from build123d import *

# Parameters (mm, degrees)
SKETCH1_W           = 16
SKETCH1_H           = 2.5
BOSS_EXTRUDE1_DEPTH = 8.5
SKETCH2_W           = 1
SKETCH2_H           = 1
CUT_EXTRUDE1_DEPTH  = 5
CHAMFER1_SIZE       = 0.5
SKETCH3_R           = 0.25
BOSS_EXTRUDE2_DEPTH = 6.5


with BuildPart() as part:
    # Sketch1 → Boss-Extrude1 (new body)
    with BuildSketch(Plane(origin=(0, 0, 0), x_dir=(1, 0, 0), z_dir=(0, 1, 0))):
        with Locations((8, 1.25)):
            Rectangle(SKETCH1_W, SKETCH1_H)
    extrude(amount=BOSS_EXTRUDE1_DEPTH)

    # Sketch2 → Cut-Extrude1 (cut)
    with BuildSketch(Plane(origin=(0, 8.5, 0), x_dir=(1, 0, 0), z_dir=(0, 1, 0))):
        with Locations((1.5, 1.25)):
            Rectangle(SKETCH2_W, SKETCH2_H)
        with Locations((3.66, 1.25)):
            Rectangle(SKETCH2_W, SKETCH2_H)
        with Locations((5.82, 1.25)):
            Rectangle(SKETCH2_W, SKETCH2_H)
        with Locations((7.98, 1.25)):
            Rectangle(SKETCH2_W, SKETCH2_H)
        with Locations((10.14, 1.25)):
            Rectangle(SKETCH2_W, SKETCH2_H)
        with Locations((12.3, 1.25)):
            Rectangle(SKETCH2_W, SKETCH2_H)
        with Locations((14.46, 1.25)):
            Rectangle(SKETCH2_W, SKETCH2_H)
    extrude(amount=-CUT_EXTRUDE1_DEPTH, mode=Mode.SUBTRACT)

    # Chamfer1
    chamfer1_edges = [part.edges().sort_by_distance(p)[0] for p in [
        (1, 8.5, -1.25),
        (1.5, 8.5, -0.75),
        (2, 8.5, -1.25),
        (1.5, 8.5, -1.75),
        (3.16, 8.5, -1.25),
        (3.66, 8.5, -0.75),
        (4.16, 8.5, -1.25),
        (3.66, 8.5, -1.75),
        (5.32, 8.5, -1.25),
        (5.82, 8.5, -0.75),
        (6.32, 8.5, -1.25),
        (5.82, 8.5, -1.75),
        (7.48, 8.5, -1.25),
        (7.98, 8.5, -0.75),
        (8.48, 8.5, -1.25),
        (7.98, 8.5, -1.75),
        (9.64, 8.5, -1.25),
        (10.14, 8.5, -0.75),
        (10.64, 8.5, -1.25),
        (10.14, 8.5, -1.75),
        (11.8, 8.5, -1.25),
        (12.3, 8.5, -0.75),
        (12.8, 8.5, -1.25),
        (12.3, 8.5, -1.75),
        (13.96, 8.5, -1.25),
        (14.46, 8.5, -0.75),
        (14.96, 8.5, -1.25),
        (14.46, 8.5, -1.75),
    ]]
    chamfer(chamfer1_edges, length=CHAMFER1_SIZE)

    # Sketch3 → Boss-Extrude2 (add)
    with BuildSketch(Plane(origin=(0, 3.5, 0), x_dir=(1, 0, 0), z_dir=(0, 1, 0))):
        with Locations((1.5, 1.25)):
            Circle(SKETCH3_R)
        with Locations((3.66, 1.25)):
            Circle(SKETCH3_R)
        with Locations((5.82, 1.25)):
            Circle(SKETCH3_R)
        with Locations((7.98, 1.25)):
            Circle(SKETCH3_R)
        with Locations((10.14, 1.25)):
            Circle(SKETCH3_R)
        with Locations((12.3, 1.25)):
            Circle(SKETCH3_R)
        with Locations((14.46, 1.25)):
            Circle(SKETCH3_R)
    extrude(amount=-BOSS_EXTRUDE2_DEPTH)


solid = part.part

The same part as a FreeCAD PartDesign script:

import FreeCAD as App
import Part
import Sketcher
Q = App.Units.Quantity


def edges_at(feature, points):
    """Names of the edges that pass closest to the given points."""
    edges = feature.Shape.Edges
    near = lambda p: min(range(len(edges)), key=lambda i: edges[i].distToShape(Part.Vertex(*p))[0])
    return sorted({f"Edge{near(p) + 1}" for p in points})


def add_polygon(sketch, points):
    """Adds a closed chain of lines whose ends are joined by coincident constraints."""
    first, n = sketch.GeometryCount, len(points)
    for a, b in zip(points, points[1:] + points[:1]):
        sketch.addGeometry(Part.LineSegment(App.Vector(*a, 0), App.Vector(*b, 0)), False)
    for i in range(n):
        sketch.addConstraint(Sketcher.Constraint("Coincident", first + i, 2, first + (i + 1) % n, 1))

doc = App.newDocument("Part")
body = doc.addObject("PartDesign::Body", "Body")

# Sketch on XZ plane
sketch1 = body.newObject("Sketcher::SketchObject", "Sketch")
sketch1.AttachmentSupport = (doc.getObject("XZ_Plane"), [""])
sketch1.MapMode = "FlatFace"
add_polygon(sketch1, [(0, -2.5), (0, 0), (16, 0), (16, -2.5)])  # lines 0-3
sketch1.addConstraint(Sketcher.Constraint("Vertical", 0))
sketch1.addConstraint(Sketcher.Constraint("Horizontal", 1))
sketch1.addConstraint(Sketcher.Constraint("Vertical", 2))
sketch1.addConstraint(Sketcher.Constraint("Horizontal", 3))
sketch1.addConstraint(Sketcher.Constraint("Coincident", 0, 2, -1, 1))
sketch1.addConstraint(Sketcher.Constraint("DistanceX", 1, 1, 1, 2, Q("16 mm")))
sketch1.addConstraint(Sketcher.Constraint("DistanceY", 0, 1, 0, 2, Q("2.5 mm")))
pad1 = body.newObject("PartDesign::Pad", "Pad")
pad1.Profile = sketch1
pad1.Length = 8.5
pad1.Reversed = True

# Sketch on XZ plane
sketch2 = body.newObject("Sketcher::SketchObject", "Sketch001")
sketch2.AttachmentSupport = (doc.getObject("XZ_Plane"), [""])
sketch2.MapMode = "FlatFace"
sketch2.AttachmentOffset = App.Placement(App.Vector(0, 0, -8.5), App.Rotation())
add_polygon(sketch2, [(1, -1.8), (1, -0.8), (2, -0.8), (2, -1.8)])  # lines 0-3
add_polygon(sketch2, [(3.2, -1.8), (3.2, -0.8), (4.2, -0.8), (4.2, -1.8)])  # lines 4-7
add_polygon(sketch2, [(5.3, -1.8), (5.3, -0.8), (6.3, -0.8), (6.3, -1.8)])  # lines 8-11
add_polygon(sketch2, [(7.5, -1.8), (7.5, -0.8), (8.5, -0.8), (8.5, -1.8)])  # lines 12-15
add_polygon(sketch2, [(9.6, -1.8), (9.6, -0.8), (10.6, -0.8), (10.6, -1.8)])  # lines 16-19
add_polygon(sketch2, [(11.8, -1.8), (11.8, -0.8), (12.8, -0.8), (12.8, -1.8)])  # lines 20-23
add_polygon(sketch2, [(14, -1.8), (14, -0.8), (15, -0.8), (15, -1.8)])  # lines 24-27
sketch2.addConstraint(Sketcher.Constraint("Vertical", 0))
sketch2.addConstraint(Sketcher.Constraint("Horizontal", 1))
sketch2.addConstraint(Sketcher.Constraint("Vertical", 2))
sketch2.addConstraint(Sketcher.Constraint("Horizontal", 3))
sketch2.addConstraint(Sketcher.Constraint("Vertical", 4))
sketch2.addConstraint(Sketcher.Constraint("Horizontal", 5))
sketch2.addConstraint(Sketcher.Constraint("Vertical", 6))
sketch2.addConstraint(Sketcher.Constraint("Horizontal", 7))
sketch2.addConstraint(Sketcher.Constraint("Vertical", 8))
sketch2.addConstraint(Sketcher.Constraint("Horizontal", 9))
sketch2.addConstraint(Sketcher.Constraint("Vertical", 10))
sketch2.addConstraint(Sketcher.Constraint("Horizontal", 11))
sketch2.addConstraint(Sketcher.Constraint("Vertical", 12))
sketch2.addConstraint(Sketcher.Constraint("Horizontal", 13))
sketch2.addConstraint(Sketcher.Constraint("Vertical", 14))
sketch2.addConstraint(Sketcher.Constraint("Horizontal", 15))
sketch2.addConstraint(Sketcher.Constraint("Vertical", 16))
sketch2.addConstraint(Sketcher.Constraint("Horizontal", 17))
sketch2.addConstraint(Sketcher.Constraint("Vertical", 18))
sketch2.addConstraint(Sketcher.Constraint("Horizontal", 19))
sketch2.addConstraint(Sketcher.Constraint("Vertical", 20))
sketch2.addConstraint(Sketcher.Constraint("Horizontal", 21))
sketch2.addConstraint(Sketcher.Constraint("Vertical", 22))
sketch2.addConstraint(Sketcher.Constraint("Horizontal", 23))
sketch2.addConstraint(Sketcher.Constraint("Vertical", 24))
sketch2.addConstraint(Sketcher.Constraint("Horizontal", 25))
sketch2.addConstraint(Sketcher.Constraint("Vertical", 26))
sketch2.addConstraint(Sketcher.Constraint("Horizontal", 27))
sketch2.addConstraint(Sketcher.Constraint("Horizontal", 1, 2, 4, 2))
sketch2.addConstraint(Sketcher.Constraint("Horizontal", 3, 2, 6, 2))
sketch2.addConstraint(Sketcher.Constraint("Horizontal", 5, 2, 8, 2))
sketch2.addConstraint(Sketcher.Constraint("Horizontal", 7, 2, 10, 2))
sketch2.addConstraint(Sketcher.Constraint("Horizontal", 9, 2, 12, 2))
sketch2.addConstraint(Sketcher.Constraint("Horizontal", 11, 2, 14, 2))
sketch2.addConstraint(Sketcher.Constraint("Horizontal", 13, 2, 16, 2))
sketch2.addConstraint(Sketcher.Constraint("Horizontal", 15, 2, 18, 2))
sketch2.addConstraint(Sketcher.Constraint("Horizontal", 17, 2, 20, 2))
sketch2.addConstraint(Sketcher.Constraint("Horizontal", 19, 2, 22, 2))
sketch2.addConstraint(Sketcher.Constraint("Horizontal", 21, 2, 24, 2))
sketch2.addConstraint(Sketcher.Constraint("Horizontal", 23, 2, 26, 2))
sketch2.addConstraint(Sketcher.Constraint("Equal", 3, 5))
sketch2.addConstraint(Sketcher.Constraint("Equal", 7, 9))
sketch2.addConstraint(Sketcher.Constraint("Equal", 11, 13))
sketch2.addConstraint(Sketcher.Constraint("Equal", 15, 17))
sketch2.addConstraint(Sketcher.Constraint("Equal", 19, 21))
sketch2.addConstraint(Sketcher.Constraint("Equal", 23, 25))
sketch2.addConstraint(Sketcher.Constraint("Equal", 27, 0))
sketch2.addConstraint(Sketcher.Constraint("DistanceX", 1, 1, 1, 2, Q("1 mm")))
sketch2.addConstraint(Sketcher.Constraint("DistanceX", -1, 1, 0, 2, Q("1 mm")))
sketch2.addConstraint(Sketcher.Constraint("DistanceX", -1, 1, 20, 2, Q("11.8 mm")))
sketch2.addConstraint(Sketcher.Constraint("DistanceY", 0, 2, -1, 1, Q("0.75 mm")))
sketch2.addConstraint(Sketcher.Constraint("DistanceX", -1, 1, 4, 2, Q("3.16 mm")))
sketch2.addConstraint(Sketcher.Constraint("DistanceX", -1, 1, 8, 2, Q("5.32 mm")))
sketch2.addConstraint(Sketcher.Constraint("DistanceX", -1, 1, 12, 2, Q("7.48 mm")))
sketch2.addConstraint(Sketcher.Constraint("DistanceX", -1, 1, 16, 2, Q("9.64 mm")))
sketch2.addConstraint(Sketcher.Constraint("DistanceX", -1, 1, 24, 2, Q("13.96 mm")))
pocket1 = body.newObject("PartDesign::Pocket", "Pocket")
pocket1.Profile = sketch2
pocket1.Length = 5
pocket1.Reversed = True
doc.recompute()

chamfer = body.newObject("PartDesign::Chamfer", "Chamfer")
chamfer.Base = (pocket1, edges_at(pocket1, [
    (1, 8.5, -1.25),
    (1.5, 8.5, -0.75),
    (2, 8.5, -1.25),
    (1.5, 8.5, -1.75),
    (3.16, 8.5, -1.25),
    (3.66, 8.5, -0.75),
    (4.16, 8.5, -1.25),
    (3.66, 8.5, -1.75),
    (5.32, 8.5, -1.25),
    (5.82, 8.5, -0.75),
    (6.32, 8.5, -1.25),
    (5.82, 8.5, -1.75),
    (7.48, 8.5, -1.25),
    (7.98, 8.5, -0.75),
    (8.48, 8.5, -1.25),
    (7.98, 8.5, -1.75),
    (9.64, 8.5, -1.25),
    (10.14, 8.5, -0.75),
    (10.64, 8.5, -1.25),
    (10.14, 8.5, -1.75),
    (11.8, 8.5, -1.25),
    (12.3, 8.5, -0.75),
    (12.8, 8.5, -1.25),
    (12.3, 8.5, -1.75),
    (13.96, 8.5, -1.25),
    (14.46, 8.5, -0.75),
    (14.96, 8.5, -1.25),
    (14.46, 8.5, -1.75),
]))
chamfer.Size = 0.5

# Sketch on XZ plane
sketch3 = body.newObject("Sketcher::SketchObject", "Sketch002")
sketch3.AttachmentSupport = (doc.getObject("XZ_Plane"), [""])
sketch3.MapMode = "FlatFace"
sketch3.AttachmentOffset = App.Placement(App.Vector(0, 0, -3.5), App.Rotation())
sketch3.addGeometry(Part.Circle(App.Vector(1.5, -1.25, 0), App.Vector(0, 0, 1), 0.25), False)
sketch3.addGeometry(Part.Circle(App.Vector(3.66, -1.25, 0), App.Vector(0, 0, 1), 0.25), False)
sketch3.addGeometry(Part.Circle(App.Vector(5.82, -1.25, 0), App.Vector(0, 0, 1), 0.25), False)
sketch3.addGeometry(Part.Circle(App.Vector(7.98, -1.25, 0), App.Vector(0, 0, 1), 0.25), False)
sketch3.addGeometry(Part.Circle(App.Vector(10.14, -1.25, 0), App.Vector(0, 0, 1), 0.25), False)
sketch3.addGeometry(Part.Circle(App.Vector(12.3, -1.25, 0), App.Vector(0, 0, 1), 0.25), False)
sketch3.addGeometry(Part.Circle(App.Vector(14.46, -1.25, 0), App.Vector(0, 0, 1), 0.25), False)
sketch3.addConstraint(Sketcher.Constraint("Equal", 0, 1))
sketch3.addConstraint(Sketcher.Constraint("Equal", 1, 2))
sketch3.addConstraint(Sketcher.Constraint("Equal", 2, 3))
sketch3.addConstraint(Sketcher.Constraint("Equal", 3, 4))
sketch3.addConstraint(Sketcher.Constraint("Equal", 4, 5))
sketch3.addConstraint(Sketcher.Constraint("Equal", 5, 6))
sketch3.addConstraint(Sketcher.Constraint("Horizontal", 0, 3, 1, 3))
sketch3.addConstraint(Sketcher.Constraint("Horizontal", 1, 3, 2, 3))
sketch3.addConstraint(Sketcher.Constraint("Horizontal", 2, 3, 3, 3))
sketch3.addConstraint(Sketcher.Constraint("Horizontal", 3, 3, 4, 3))
sketch3.addConstraint(Sketcher.Constraint("Horizontal", 4, 3, 5, 3))
sketch3.addConstraint(Sketcher.Constraint("Horizontal", 5, 3, 6, 3))
sketch3.addConstraint(Sketcher.Constraint("Diameter", 0, Q("0.5 mm")))
sketch3.addConstraint(Sketcher.Constraint("DistanceX", -1, 1, 0, 3, Q("1.5 mm")))
sketch3.addConstraint(Sketcher.Constraint("DistanceX", -1, 1, 5, 3, Q("12.3 mm")))
sketch3.addConstraint(Sketcher.Constraint("DistanceX", 1, 3, 6, 3, Q("10.8 mm")))
sketch3.addConstraint(Sketcher.Constraint("DistanceY", 0, 3, -1, 1, Q("1.25 mm")))
sketch3.addConstraint(Sketcher.Constraint("DistanceX", -1, 1, 1, 3, Q("3.66 mm")))
sketch3.addConstraint(Sketcher.Constraint("DistanceX", -1, 1, 2, 3, Q("5.82 mm")))
sketch3.addConstraint(Sketcher.Constraint("DistanceX", -1, 1, 3, 3, Q("7.98 mm")))
sketch3.addConstraint(Sketcher.Constraint("DistanceX", -1, 1, 4, 3, Q("10.14 mm")))
pad2 = body.newObject("PartDesign::Pad", "Pad001")
pad2.Profile = sketch3
pad2.Length = 6.5

doc.recompute()
